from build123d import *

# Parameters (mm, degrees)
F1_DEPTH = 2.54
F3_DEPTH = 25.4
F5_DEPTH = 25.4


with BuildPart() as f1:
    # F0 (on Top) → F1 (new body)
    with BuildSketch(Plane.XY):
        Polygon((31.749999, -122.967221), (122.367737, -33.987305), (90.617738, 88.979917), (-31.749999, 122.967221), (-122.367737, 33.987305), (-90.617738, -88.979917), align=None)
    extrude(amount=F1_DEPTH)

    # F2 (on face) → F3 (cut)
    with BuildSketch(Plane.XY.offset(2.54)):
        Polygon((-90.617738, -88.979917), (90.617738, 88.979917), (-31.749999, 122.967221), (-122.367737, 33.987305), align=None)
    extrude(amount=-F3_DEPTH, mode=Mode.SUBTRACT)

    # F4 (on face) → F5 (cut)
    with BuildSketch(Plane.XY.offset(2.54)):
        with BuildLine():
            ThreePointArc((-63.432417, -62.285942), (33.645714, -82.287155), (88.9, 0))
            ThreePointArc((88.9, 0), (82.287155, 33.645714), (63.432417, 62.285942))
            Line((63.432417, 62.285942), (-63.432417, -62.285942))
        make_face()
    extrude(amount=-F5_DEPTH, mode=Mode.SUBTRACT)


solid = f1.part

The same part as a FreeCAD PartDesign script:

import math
import FreeCAD as App
import Part
import Sketcher

V = App.Vector
Q = App.Units.Quantity

doc = App.newDocument("Part")
body = doc.addObject("PartDesign::Body", "Body")

# Sketch on XY plane
sketch1 = doc.addObject("Sketcher::SketchObject", "Sketch")
body.addObject(sketch1)
sketch1.AttachmentSupport = (doc.XY_Plane, [""])
sketch1.MapMode = "FlatFace"
sketch1.addGeometry([
    Part.LineSegment(V(31.749999, -122.967221, 0), V(122.367737, -33.987305, 0)),  # 0
    Part.LineSegment(V(122.367737, -33.987305, 0), V(90.617738, 88.979917, 0)),  # 1
    Part.LineSegment(V(90.617738, 88.979917, 0), V(-31.749999, 122.967221, 0)),  # 2
    Part.LineSegment(V(-31.749999, 122.967221, 0), V(-122.367737, 33.987305, 0)),  # 3
    Part.LineSegment(V(-122.367737, 33.987305, 0), V(-90.617738, -88.979917, 0)),  # 4
    Part.LineSegment(V(-90.617738, -88.979917, 0), V(31.749999, -122.967221, 0)),  # 5
], False)
sketch1.addConstraint([
    Sketcher.Constraint("Coincident", 0, 2, 1, 1),
    Sketcher.Constraint("Coincident", 1, 2, 2, 1),
    Sketcher.Constraint("Coincident", 2, 2, 3, 1),
    Sketcher.Constraint("Coincident", 3, 2, 4, 1),
    Sketcher.Constraint("Coincident", 4, 2, 5, 1),
    Sketcher.Constraint("Coincident", 5, 2, 0, 1),
    Sketcher.Constraint("Symmetric", 0, 2, 3, 2, -1, 1),
    Sketcher.Constraint("Symmetric", 1, 2, 4, 2, -1, 1),
    Sketcher.Constraint("Symmetric", 2, 2, 5, 2, -1, 1),
    Sketcher.Constraint("Equal", 0, 1),
    Sketcher.Constraint("Equal", 1, 2),
    Sketcher.Constraint("Distance", 0, Q("5 in")),
    Sketcher.Constraint("DistanceX", 2, 2, 5, 2, Q("2.4999999 in")),
    Sketcher.Constraint("DistanceX", 1, 2, 0, 2, Q("1.25 in")),
    Sketcher.Constraint("DistanceX", -1, 1, 1, 2, Q("90.617738 mm")),
])
pad1 = doc.addObject("PartDesign::Pad", "Pad")
body.addObject(pad1)
pad1.Profile = sketch1
pad1.Length = Q("0.1 in")

# Sketch on XY plane
sketch2 = doc.addObject("Sketcher::SketchObject", "Sketch001")
body.addObject(sketch2)
sketch2.AttachmentSupport = (doc.XY_Plane, [""])
sketch2.MapMode = "FlatFace"
sketch2.AttachmentOffset = App.Placement(V(0, 0, 0.1 * 25.4), App.Rotation())
sketch2.addGeometry([
    Part.LineSegment(V(-90.617738, -88.979917, 0), V(90.617738, 88.979917, 0)),
    Part.LineSegment(V(90.617738, 88.979917, 0), V(-31.749999, 122.967221, 0)),
    Part.LineSegment(V(-31.749999, 122.967221, 0), V(-122.367737, 33.987305, 0)),
    Part.LineSegment(V(-122.367737, 33.987305, 0), V(-90.617738, -88.979917, 0)),
], False)
sketch2.addConstraint([
    Sketcher.Constraint("Coincident", 0, 2, 1, 1),
    Sketcher.Constraint("Coincident", 1, 2, 2, 1),
    Sketcher.Constraint("Coincident", 2, 2, 3, 1),
    Sketcher.Constraint("Coincident", 3, 2, 0, 1),
    Sketcher.Constraint("Symmetric", 0, 2, 3, 2, -1, 1),
    Sketcher.Constraint("Parallel", 0, 2),
    Sketcher.Constraint("Equal", 1, 2),
    Sketcher.Constraint("Equal", 2, 3),
    Sketcher.Constraint("Distance", 0, Q("10 in")),
    Sketcher.Constraint("Distance", 1, Q("5 in")),
    Sketcher.Constraint("DistanceX", 1, 2, -1, 1, Q("1.25 in")),
])
pocket1 = doc.addObject("PartDesign::Pocket", "Pocket")
body.addObject(pocket1)
pocket1.Profile = sketch2
pocket1.Length = Q("1 in")

# Sketch on XY plane
sketch3 = doc.addObject("Sketcher::SketchObject", "Sketch002")
body.addObject(sketch3)
sketch3.AttachmentSupport = (doc.XY_Plane, [""])
sketch3.MapMode = "FlatFace"
sketch3.AttachmentOffset = App.Placement(V(0, 0, 0.1 * 25.4), App.Rotation())
sketch3.addGeometry([
    Part.ArcOfCircle(Part.Circle(V(-0.000001, 0.000001, 0), V(0, 0, 1), 88.900001), math.radians(-135.522488), math.radians(0)),
    Part.ArcOfCircle(Part.Circle(V(-0.000007, -0.000002, 0), V(0, 0, 1), 88.900007), math.radians(0.000001), math.radians(44.47751)),
    Part.LineSegment(V(63.432417, 62.285942, 0), V(-63.432417, -62.285942, 0)),
], False)
sketch3.addConstraint([
    Sketcher.Constraint("Tangent", 0, 2, 1, 1),
    Sketcher.Constraint("Coincident", 1, 2, 2, 1),
    Sketcher.Constraint("Coincident", 2, 2, 0, 1),
    Sketcher.Constraint("Coincident", 0, 3, -1, 1),
    Sketcher.Constraint("Symmetric", 1, 2, 2, 2, -1, 1),
    Sketcher.Constraint("PointOnObject", 0, 2, -1),
    Sketcher.Constraint("Radius", 0, Q("3.5 in")),
    Sketcher.Constraint("DistanceY", -1, 1, 1, 2, Q("62.285942 mm")),
])
pocket2 = doc.addObject("PartDesign::Pocket", "Pocket001")
body.addObject(pocket2)
pocket2.Profile = sketch3
pocket2.Length = Q("1 in")

doc.recompute()
